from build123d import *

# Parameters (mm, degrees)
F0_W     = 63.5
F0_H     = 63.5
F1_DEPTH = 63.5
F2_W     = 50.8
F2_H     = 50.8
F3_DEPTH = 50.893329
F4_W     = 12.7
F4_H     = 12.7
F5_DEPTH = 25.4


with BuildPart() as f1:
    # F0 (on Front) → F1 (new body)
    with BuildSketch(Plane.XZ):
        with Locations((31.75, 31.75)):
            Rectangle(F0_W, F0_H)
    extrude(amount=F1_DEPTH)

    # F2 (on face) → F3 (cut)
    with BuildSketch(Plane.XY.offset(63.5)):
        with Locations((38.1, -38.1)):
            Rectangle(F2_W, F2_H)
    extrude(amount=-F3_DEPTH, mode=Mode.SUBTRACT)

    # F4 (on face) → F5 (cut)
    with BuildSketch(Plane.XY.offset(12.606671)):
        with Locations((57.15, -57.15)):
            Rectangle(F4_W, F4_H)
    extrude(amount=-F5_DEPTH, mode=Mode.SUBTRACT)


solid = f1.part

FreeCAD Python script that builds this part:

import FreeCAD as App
import Part
import Sketcher

V = App.Vector
Q = App.Units.Quantity


def add_polygon(sketch, points):
    """Adds a closed chain of lines whose ends are joined by coincident constraints."""
    first, n = sketch.GeometryCount, len(points)
    for a, b in zip(points, points[1:] + points[:1]):
        sketch.addGeometry(Part.LineSegment(App.Vector(*a, 0), App.Vector(*b, 0)), False)
    for i in range(n):
        sketch.addConstraint(Sketcher.Constraint("Coincident", first + i, 2, first + (i + 1) % n, 1))

doc = App.newDocument("Part")
body = doc.addObject("PartDesign::Body", "Body")

# Sketch on XZ plane
sketch1 = body.newObject("Sketcher::SketchObject", "Sketch")
sketch1.AttachmentSupport = (doc.getObject("XZ_Plane"), [""])
sketch1.MapMode = "FlatFace"
add_polygon(sketch1, [(0, 64), (0, 0), (64, 0), (64, 64)])  # lines 0-3
sketch1.addConstraint([
    Sketcher.Constraint("Vertical", 0),
    Sketcher.Constraint("Horizontal", 1),
    Sketcher.Constraint("Vertical", 2),
    Sketcher.Constraint("Horizontal", 3),
    Sketcher.Constraint("Coincident", 0, 2, -1, 1),
    Sketcher.Constraint("Equal", 3, 0),
    Sketcher.Constraint("DistanceX", 1, 1, 1, 2, Q("2.5 in")),
])
pad1 = body.newObject("PartDesign::Pad", "Pad")
pad1.Profile = sketch1
pad1.Length = Q("2.5 in")

# Sketch on XY plane
sketch2 = body.newObject("Sketcher::SketchObject", "Sketch001")
sketch2.AttachmentSupport = (doc.getObject("XY_Plane"), [""])
sketch2.MapMode = "FlatFace"
sketch2.AttachmentOffset = App.Placement(V(0, 0, 2.5 * 25.4), App.Rotation())
add_polygon(sketch2, [(13, -13), (13, -64), (64, -64), (64, -13)])  # lines 0-3
sketch2.addConstraint([
    Sketcher.Constraint("Vertical", 0),
    Sketcher.Constraint("Horizontal", 1),
    Sketcher.Constraint("Vertical", 2),
    Sketcher.Constraint("Horizontal", 3),
    Sketcher.Constraint("Equal", 3, 0),
    Sketcher.Constraint("DistanceX", 1, 1, 1, 2, Q("2 in")),
    Sketcher.Constraint("DistanceX", -1, 1, 0, 2, Q("0.5 in")),
    Sketcher.Constraint("DistanceY", 0, 2, -1, 1, Q("2.5 in")),
])
pocket1 = body.newObject("PartDesign::Pocket", "Pocket")
pocket1.Profile = sketch2
pocket1.Length = 50.893329

# Sketch on XY plane
sketch3 = body.newObject("Sketcher::SketchObject", "Sketch002")
sketch3.AttachmentSupport = (doc.getObject("XY_Plane"), [""])
sketch3.MapMode = "FlatFace"
sketch3.AttachmentOffset = App.Placement(V(0, 0, 12.606671), App.Rotation())
add_polygon(sketch3, [(51, -51), (51, -64), (64, -64), (64, -51)])  # lines 0-3
sketch3.addConstraint([
    Sketcher.Constraint("Vertical", 0),
    Sketcher.Constraint("Horizontal", 1),
    Sketcher.Constraint("Vertical", 2),
    Sketcher.Constraint("Horizontal", 3),
    Sketcher.Constraint("Equal", 3, 0),
    Sketcher.Constraint("DistanceX", 1, 1, 1, 2, Q("0.5 in")),
    Sketcher.Constraint("DistanceX", -1, 1, 0, 2, Q("2 in")),
    Sketcher.Constraint("DistanceY", 2, 2, -1, 1, Q("2 in")),
])
pocket2 = body.newObject("PartDesign::Pocket", "Pocket001")
pocket2.Profile = sketch3
pocket2.Length = Q("1 in")

doc.recompute()
